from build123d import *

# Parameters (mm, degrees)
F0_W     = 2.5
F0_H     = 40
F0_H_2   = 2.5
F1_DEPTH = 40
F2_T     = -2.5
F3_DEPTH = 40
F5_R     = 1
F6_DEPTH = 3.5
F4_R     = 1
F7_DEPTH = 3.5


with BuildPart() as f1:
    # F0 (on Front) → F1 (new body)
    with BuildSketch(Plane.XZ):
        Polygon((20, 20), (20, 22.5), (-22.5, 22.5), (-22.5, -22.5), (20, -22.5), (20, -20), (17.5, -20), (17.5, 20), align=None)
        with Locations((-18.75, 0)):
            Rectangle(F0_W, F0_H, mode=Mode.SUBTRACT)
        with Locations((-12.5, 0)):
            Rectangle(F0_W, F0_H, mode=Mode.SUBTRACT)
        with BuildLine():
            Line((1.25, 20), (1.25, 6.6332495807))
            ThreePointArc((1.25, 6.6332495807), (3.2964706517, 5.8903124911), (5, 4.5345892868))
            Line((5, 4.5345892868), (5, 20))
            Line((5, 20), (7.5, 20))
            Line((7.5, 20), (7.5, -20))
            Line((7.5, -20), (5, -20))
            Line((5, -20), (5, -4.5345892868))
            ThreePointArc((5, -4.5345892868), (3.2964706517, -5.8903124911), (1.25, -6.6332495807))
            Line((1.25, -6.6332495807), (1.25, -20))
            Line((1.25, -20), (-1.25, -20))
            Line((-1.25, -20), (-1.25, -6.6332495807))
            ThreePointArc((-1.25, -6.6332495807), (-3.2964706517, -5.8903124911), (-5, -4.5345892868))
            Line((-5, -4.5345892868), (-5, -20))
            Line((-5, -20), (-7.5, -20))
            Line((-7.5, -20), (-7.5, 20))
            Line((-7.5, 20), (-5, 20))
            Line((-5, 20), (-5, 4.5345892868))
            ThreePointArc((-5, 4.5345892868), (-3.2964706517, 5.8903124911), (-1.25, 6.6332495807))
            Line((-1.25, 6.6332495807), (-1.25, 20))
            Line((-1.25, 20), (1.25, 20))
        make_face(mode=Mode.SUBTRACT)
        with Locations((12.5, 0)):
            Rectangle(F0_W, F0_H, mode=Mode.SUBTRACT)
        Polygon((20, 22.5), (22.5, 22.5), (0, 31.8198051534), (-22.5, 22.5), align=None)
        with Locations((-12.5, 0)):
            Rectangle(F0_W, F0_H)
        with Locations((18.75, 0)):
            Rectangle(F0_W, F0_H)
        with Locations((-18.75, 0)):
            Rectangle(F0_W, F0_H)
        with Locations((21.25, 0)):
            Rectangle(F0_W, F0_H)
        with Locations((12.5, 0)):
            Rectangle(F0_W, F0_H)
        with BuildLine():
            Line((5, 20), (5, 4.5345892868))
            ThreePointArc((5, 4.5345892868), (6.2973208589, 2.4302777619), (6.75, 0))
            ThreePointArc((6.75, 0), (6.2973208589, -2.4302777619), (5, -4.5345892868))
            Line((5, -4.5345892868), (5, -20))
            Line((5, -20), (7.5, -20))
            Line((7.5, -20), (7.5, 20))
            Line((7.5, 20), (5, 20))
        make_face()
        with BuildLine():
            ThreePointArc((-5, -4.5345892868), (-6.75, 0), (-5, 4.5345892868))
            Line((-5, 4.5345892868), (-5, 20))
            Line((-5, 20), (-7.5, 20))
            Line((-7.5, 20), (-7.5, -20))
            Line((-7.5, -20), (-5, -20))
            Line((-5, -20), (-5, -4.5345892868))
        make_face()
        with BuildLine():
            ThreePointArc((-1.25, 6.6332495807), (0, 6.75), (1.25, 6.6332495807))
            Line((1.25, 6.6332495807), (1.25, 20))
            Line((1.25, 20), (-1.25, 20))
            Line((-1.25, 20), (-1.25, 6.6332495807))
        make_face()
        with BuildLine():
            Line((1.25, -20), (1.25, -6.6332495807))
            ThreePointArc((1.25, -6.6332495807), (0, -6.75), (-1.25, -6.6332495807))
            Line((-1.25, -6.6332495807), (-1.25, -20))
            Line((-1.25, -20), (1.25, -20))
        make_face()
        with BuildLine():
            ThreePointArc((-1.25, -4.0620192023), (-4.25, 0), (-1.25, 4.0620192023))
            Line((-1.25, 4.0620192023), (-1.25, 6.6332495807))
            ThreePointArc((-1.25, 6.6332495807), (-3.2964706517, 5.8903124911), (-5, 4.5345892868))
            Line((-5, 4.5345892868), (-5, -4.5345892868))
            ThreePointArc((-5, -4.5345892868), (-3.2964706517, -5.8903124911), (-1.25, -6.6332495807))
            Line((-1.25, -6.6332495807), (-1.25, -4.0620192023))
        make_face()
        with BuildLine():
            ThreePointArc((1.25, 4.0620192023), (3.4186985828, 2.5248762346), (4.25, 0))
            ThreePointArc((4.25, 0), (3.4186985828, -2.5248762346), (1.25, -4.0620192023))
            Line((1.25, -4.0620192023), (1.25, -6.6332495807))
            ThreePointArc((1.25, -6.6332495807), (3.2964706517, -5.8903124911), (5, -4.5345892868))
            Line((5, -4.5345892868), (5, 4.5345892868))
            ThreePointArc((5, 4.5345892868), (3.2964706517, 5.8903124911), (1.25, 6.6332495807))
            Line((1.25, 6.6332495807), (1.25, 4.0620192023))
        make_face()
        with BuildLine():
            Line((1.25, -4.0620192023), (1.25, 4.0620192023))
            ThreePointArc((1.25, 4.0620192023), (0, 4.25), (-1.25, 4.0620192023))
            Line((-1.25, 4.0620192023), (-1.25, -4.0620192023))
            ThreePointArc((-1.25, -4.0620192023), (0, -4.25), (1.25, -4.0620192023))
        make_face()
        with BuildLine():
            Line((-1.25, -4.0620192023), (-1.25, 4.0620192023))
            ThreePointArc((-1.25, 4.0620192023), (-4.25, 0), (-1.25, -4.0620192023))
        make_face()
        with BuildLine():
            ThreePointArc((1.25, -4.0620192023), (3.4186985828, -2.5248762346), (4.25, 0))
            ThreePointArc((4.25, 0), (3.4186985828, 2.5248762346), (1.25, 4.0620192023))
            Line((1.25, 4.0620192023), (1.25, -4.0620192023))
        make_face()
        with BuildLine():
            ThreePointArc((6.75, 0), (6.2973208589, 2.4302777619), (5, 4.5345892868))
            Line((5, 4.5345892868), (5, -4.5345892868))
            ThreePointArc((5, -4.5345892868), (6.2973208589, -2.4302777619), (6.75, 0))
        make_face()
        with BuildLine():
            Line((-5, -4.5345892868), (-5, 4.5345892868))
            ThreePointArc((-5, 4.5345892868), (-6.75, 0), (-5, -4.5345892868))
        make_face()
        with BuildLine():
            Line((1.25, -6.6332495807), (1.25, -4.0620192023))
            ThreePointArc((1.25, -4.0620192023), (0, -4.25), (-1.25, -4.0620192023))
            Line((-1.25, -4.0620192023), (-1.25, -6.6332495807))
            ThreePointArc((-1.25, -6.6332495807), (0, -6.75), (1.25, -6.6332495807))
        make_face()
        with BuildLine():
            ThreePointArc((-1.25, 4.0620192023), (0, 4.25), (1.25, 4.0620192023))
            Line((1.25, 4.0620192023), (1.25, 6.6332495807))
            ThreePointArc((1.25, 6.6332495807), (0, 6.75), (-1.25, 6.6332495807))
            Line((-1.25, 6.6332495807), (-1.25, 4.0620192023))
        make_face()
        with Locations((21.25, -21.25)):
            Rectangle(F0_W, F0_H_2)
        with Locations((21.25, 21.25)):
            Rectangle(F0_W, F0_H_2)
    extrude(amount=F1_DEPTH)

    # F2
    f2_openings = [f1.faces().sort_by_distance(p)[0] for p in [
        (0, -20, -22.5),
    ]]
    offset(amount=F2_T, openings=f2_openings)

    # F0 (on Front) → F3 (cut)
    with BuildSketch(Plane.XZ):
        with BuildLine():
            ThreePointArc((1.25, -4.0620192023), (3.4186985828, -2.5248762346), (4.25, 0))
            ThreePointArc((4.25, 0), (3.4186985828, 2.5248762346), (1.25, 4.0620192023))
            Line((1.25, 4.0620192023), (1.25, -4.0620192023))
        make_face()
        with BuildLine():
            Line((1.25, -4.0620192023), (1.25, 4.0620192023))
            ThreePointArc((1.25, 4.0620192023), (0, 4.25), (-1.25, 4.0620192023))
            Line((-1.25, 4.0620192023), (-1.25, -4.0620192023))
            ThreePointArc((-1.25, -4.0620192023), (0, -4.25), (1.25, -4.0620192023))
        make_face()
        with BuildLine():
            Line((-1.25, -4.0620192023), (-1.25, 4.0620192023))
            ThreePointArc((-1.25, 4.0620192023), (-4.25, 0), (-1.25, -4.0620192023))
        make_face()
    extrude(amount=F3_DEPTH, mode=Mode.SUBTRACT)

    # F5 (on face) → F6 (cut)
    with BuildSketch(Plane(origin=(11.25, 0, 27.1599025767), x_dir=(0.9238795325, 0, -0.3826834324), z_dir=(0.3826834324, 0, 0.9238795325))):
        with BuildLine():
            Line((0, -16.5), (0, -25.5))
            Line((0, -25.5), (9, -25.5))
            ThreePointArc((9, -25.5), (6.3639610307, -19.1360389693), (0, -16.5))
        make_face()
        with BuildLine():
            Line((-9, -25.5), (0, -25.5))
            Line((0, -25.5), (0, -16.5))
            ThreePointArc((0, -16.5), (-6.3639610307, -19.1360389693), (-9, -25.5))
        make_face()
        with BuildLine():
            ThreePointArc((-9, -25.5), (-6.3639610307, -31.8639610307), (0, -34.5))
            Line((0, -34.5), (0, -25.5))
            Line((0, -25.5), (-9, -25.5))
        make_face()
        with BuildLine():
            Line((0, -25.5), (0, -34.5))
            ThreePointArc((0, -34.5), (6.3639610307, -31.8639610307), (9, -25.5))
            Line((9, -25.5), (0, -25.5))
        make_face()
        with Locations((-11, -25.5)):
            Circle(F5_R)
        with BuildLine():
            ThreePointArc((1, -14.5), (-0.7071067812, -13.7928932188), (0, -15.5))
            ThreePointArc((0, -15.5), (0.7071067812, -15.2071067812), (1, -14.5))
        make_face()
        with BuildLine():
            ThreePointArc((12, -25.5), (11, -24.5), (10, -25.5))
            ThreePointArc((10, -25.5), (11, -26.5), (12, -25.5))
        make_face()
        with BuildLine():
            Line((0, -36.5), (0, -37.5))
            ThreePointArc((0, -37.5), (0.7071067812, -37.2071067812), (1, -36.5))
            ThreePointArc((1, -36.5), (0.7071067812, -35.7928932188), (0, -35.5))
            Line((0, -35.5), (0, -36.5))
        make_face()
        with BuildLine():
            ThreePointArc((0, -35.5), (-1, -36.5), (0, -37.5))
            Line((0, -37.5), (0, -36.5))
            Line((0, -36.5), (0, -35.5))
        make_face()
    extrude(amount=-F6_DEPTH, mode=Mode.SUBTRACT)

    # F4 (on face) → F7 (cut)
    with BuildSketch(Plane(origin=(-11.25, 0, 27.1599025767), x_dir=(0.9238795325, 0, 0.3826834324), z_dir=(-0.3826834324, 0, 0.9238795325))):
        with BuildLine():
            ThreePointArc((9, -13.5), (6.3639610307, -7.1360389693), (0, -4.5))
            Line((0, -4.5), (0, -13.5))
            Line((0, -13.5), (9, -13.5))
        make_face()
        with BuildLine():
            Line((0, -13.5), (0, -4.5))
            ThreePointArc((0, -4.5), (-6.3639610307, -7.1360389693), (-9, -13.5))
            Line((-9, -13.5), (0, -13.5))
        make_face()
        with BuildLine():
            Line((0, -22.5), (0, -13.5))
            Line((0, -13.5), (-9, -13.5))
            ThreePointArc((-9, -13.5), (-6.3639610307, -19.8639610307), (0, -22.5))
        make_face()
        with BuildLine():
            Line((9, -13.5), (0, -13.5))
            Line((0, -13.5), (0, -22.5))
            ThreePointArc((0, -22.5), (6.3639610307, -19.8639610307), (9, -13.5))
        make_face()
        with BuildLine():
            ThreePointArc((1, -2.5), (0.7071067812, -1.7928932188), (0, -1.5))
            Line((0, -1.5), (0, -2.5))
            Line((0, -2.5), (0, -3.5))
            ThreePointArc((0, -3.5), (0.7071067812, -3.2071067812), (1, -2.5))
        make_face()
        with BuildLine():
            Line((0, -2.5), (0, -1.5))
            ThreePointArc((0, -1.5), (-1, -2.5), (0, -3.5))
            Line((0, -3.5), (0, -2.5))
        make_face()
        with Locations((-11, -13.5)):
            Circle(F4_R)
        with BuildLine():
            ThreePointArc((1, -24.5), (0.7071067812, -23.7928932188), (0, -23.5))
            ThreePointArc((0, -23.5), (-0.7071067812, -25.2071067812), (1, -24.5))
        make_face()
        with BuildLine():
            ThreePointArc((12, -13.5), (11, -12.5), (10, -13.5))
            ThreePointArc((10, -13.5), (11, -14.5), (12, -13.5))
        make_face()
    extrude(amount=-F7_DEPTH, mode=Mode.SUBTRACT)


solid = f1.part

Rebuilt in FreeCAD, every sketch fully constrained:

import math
import FreeCAD as App
import Part
import Sketcher
Q = App.Units.Quantity


def faces_at(feature, points):
    """Names of the faces that lie closest to the given points."""
    faces = feature.Shape.Faces
    near = lambda p: min(range(len(faces)), key=lambda i: faces[i].distToShape(Part.Vertex(*p))[0])
    return sorted({f"Face{near(p) + 1}" for p in points})

doc = App.newDocument("Part")
body = doc.addObject("PartDesign::Body", "Body")

# Sketch on XZ plane
sketch1 = body.newObject("Sketcher::SketchObject", "Sketch")
sketch1.AttachmentSupport = (doc.getObject("XZ_Plane"), [""])
sketch1.MapMode = "FlatFace"
sketch1.addGeometry([
    Part.LineSegment(App.Vector(22, 22, 0), App.Vector(0, 32, 0)),  # 0
    Part.LineSegment(App.Vector(0, 32, 0), App.Vector(-22, 22, 0)),  # 1
    Part.LineSegment(App.Vector(-22, 22, 0), App.Vector(-22, -22, 0)),  # 2
    Part.LineSegment(App.Vector(-22, -22, 0), App.Vector(22, -22, 0)),  # 3
    Part.LineSegment(App.Vector(22, -22, 0), App.Vector(22, 22, 0)),  # 4
], False)
sketch1.addConstraint([
    Sketcher.Constraint("Coincident", 0, 2, 1, 1),
    Sketcher.Constraint("Coincident", 1, 2, 2, 1),
    Sketcher.Constraint("Coincident", 2, 2, 3, 1),
    Sketcher.Constraint("Coincident", 3, 2, 4, 1),
    Sketcher.Constraint("Coincident", 4, 2, 0, 1),
    Sketcher.Constraint("Vertical", 2),
    Sketcher.Constraint("Horizontal", 3),
    Sketcher.Constraint("Vertical", 4),
    Sketcher.Constraint("Symmetric", 1, 2, 3, 2, -1, 1),
    Sketcher.Constraint("PointOnObject", 0, 2, -2),
    Sketcher.Constraint("Horizontal", 1, 2, 4, 2),
    Sketcher.Constraint("Equal", 3, 2),
    Sketcher.Constraint("DistanceX", 3, 1, 3, 2, 45.0),
    Sketcher.Constraint("Angle", 0, Q("157.5 deg")),
])
pad1 = body.newObject("PartDesign::Pad", "Pad")
pad1.Profile = sketch1
pad1.Length = 40
doc.recompute()

thickness = body.newObject("PartDesign::Thickness", "Thickness")
thickness.Base = (pad1, faces_at(pad1, [(0, -20, -22.5)]))
thickness.Value = 2.5
thickness.Reversed = True
thickness.Join = "Arc"

# Sketch on XZ plane
sketch2 = body.newObject("Sketcher::SketchObject", "Sketch001")
sketch2.AttachmentSupport = (doc.getObject("XZ_Plane"), [""])
sketch2.MapMode = "FlatFace"
sketch2.addGeometry([
    Part.ArcOfCircle(Part.Circle(App.Vector(0, 0, 0), App.Vector(0, 0, 1), 4.2), math.radians(-73), math.radians(0)),  # 0
    Part.ArcOfCircle(Part.Circle(App.Vector(0, 0, 0), App.Vector(0, 0, 1), 4.2), math.radians(0), math.radians(73)),  # 1
    Part.ArcOfCircle(Part.Circle(App.Vector(0, 0, 0), App.Vector(0, 0, 1), 4.2), math.radians(73), math.radians(107)),  # 2
    Part.ArcOfCircle(Part.Circle(App.Vector(0, 0, 0), App.Vector(0, 0, 1), 4.2), math.radians(107), math.radians(253)),  # 3
    Part.ArcOfCircle(Part.Circle(App.Vector(0, 0, 0), App.Vector(0, 0, 1), 4.2), math.radians(-107), math.radians(-73)),  # 4
], False)
sketch2.addConstraint([
    Sketcher.Constraint("Tangent", 0, 2, 1, 1),
    Sketcher.Constraint("Tangent", 1, 2, 2, 1),
    Sketcher.Constraint("Tangent", 2, 2, 3, 1),
    Sketcher.Constraint("Tangent", 3, 2, 4, 1),
    Sketcher.Constraint("Tangent", 4, 2, 0, 1),
    Sketcher.Constraint("Coincident", 0, 3, -1, 1),
    Sketcher.Constraint("Coincident", 2, 3, -1, 1),
    Sketcher.Constraint("PointOnObject", 0, 2, -1),
    Sketcher.Constraint("Horizontal", 1, 2, 2, 2),
    Sketcher.Constraint("Horizontal", 3, 2, 4, 2),
    Sketcher.Constraint("Vertical", 2, 2, 3, 2),
    Sketcher.Constraint("Radius", 0, 4.25),
    Sketcher.Constraint("DistanceX", 2, 2, 1, 2, 2.5),
])
pocket1 = body.newObject("PartDesign::Pocket", "Pocket")
pocket1.Profile = sketch2
pocket1.Length = 40
pocket1.Reversed = True

# Sketch on an angled plane
sketch3 = body.newObject("Sketcher::SketchObject", "Sketch002")
sketch3.Placement = App.Placement(App.Vector(11.25, 0, 27.159903), App.Rotation(App.Vector(0.923879532, 0, -0.382683432), App.Vector(0, 0.999999999, 0), App.Vector(0.382683432, 0, 0.923879532), "ZXY"))
sketch3.addGeometry([
    Part.ArcOfCircle(Part.Circle(App.Vector(0, -25.5, 0), App.Vector(0, 0, 1), 9), math.radians(0), math.radians(90)),  # 0
    Part.ArcOfCircle(Part.Circle(App.Vector(0, -25.5, 0), App.Vector(0, 0, 1), 9), math.radians(90), math.radians(180)),  # 1
    Part.ArcOfCircle(Part.Circle(App.Vector(0, -25.5, 0), App.Vector(0, 0, 1), 9), math.radians(180), math.radians(270)),  # 2
    Part.ArcOfCircle(Part.Circle(App.Vector(0, -25.5, 0), App.Vector(0, 0, 1), 9), math.radians(-90), math.radians(0)),  # 3
    Part.Circle(App.Vector(-11, -25.5, 0), App.Vector(0, 0, 1), 1),  # 4
    Part.ArcOfCircle(Part.Circle(App.Vector(0, -14.5, 0), App.Vector(0, 0, 1), 1), math.radians(0), math.radians(270)),  # 5
    Part.ArcOfCircle(Part.Circle(App.Vector(0, -14.5, 0), App.Vector(0, 0, 1), 1), math.radians(-90), math.radians(0)),  # 6
    Part.Circle(App.Vector(11, -25.5, 0), App.Vector(0, 0, 1), 1),  # 7
    Part.ArcOfCircle(Part.Circle(App.Vector(0, -36.5, 0), App.Vector(0, 0, 1), 1), math.radians(-90), math.radians(0)),  # 8
    Part.ArcOfCircle(Part.Circle(App.Vector(0, -36.5, 0), App.Vector(0, 0, 1), 1), math.radians(0), math.radians(90)),  # 9
    Part.ArcOfCircle(Part.Circle(App.Vector(0, -36.5, 0), App.Vector(0, 0, 1), 1), math.radians(90), math.radians(270)),  # 10
], False)
sketch3.addConstraint([
    Sketcher.Constraint("Tangent", 0, 2, 1, 1),
    Sketcher.Constraint("Tangent", 1, 2, 2, 1),
    Sketcher.Constraint("Tangent", 2, 2, 3, 1),
    Sketcher.Constraint("Tangent", 3, 2, 0, 1),
    Sketcher.Constraint("Tangent", 5, 1, 6, 2),
    Sketcher.Constraint("Coincident", 6, 1, 5, 2),
    Sketcher.Constraint("Tangent", 8, 2, 9, 1),
    Sketcher.Constraint("Tangent", 9, 2, 10, 1),
    Sketcher.Constraint("Tangent", 10, 2, 8, 1),
    Sketcher.Constraint("Equal", 0, 1),
    Sketcher.Constraint("Equal", 4, 5),
    Sketcher.Constraint("Equal", 6, 7),
    Sketcher.Constraint("Equal", 7, 8),
    Sketcher.Constraint("Symmetric", 4, 3, 7, 3, -2),
    Sketcher.Constraint("Symmetric", 1, 2, 3, 2, -2),
    Sketcher.Constraint("PointOnObject", 5, 3, -2),
    Sketcher.Constraint("PointOnObject", 8, 3, -2),
    Sketcher.Constraint("PointOnObject", 0, 2, -2),
    Sketcher.Constraint("PointOnObject", 2, 2, -2),
    Sketcher.Constraint("PointOnObject", 6, 1, -2),
    Sketcher.Constraint("PointOnObject", 9, 2, -2),
    Sketcher.Constraint("PointOnObject", 10, 2, -2),
    Sketcher.Constraint("Horizontal", 3, 3, 4, 3),
    Sketcher.Constraint("Horizontal", 7, 3, 1, 2),
    Sketcher.Constraint("Horizontal", 6, 3, 5, 1),
    Sketcher.Constraint("Horizontal", 10, 3, 8, 2),
    Sketcher.Constraint("Diameter", 4, 2.0),
    Sketcher.Constraint("Radius", 0, 9.0),
    Sketcher.Constraint("DistanceX", 4, 3, -1, 1, 11.0),
    Sketcher.Constraint("DistanceY", 0, 3, 5, 3, 11.0),
    Sketcher.Constraint("DistanceY", 8, 3, 0, 3, 11.0),
    Sketcher.Constraint("DistanceY", 0, 3, -1, 1, 25.5),
])
pocket2 = body.newObject("PartDesign::Pocket", "Pocket001")
pocket2.Profile = sketch3
pocket2.Length = 3.5

# Sketch on an angled plane
sketch4 = body.newObject("Sketcher::SketchObject", "Sketch003")
sketch4.Placement = App.Placement(App.Vector(-11.25, 0, 27.159903), App.Rotation(App.Vector(0.923879532, 0, 0.382683432), App.Vector(0, 0.999999999, 0), App.Vector(-0.382683432, 0, 0.923879532), "ZXY"))
sketch4.addGeometry([
    Part.ArcOfCircle(Part.Circle(App.Vector(0, -13.5, 0), App.Vector(0, 0, 1), 9), math.radians(0), math.radians(90)),  # 0
    Part.ArcOfCircle(Part.Circle(App.Vector(0, -13.5, 0), App.Vector(0, 0, 1), 9), math.radians(90), math.radians(180)),  # 1
    Part.ArcOfCircle(Part.Circle(App.Vector(0, -13.5, 0), App.Vector(0, 0, 1), 9), math.radians(180), math.radians(270)),  # 2
    Part.ArcOfCircle(Part.Circle(App.Vector(0, -13.5, 0), App.Vector(0, 0, 1), 9), math.radians(-90), math.radians(0)),  # 3
    Part.ArcOfCircle(Part.Circle(App.Vector(0, -2.5, 0), App.Vector(0, 0, 1), 1), math.radians(0), math.radians(90)),  # 4
    Part.ArcOfCircle(Part.Circle(App.Vector(0, -2.5, 0), App.Vector(0, 0, 1), 1), math.radians(90), math.radians(270)),  # 5
    Part.ArcOfCircle(Part.Circle(App.Vector(0, -2.5, 0), App.Vector(0, 0, 1), 1), math.radians(-90), math.radians(0)),  # 6
    Part.Circle(App.Vector(-11, -13.5, 0), App.Vector(0, 0, 1), 1),  # 7
    Part.ArcOfCircle(Part.Circle(App.Vector(0, -24.5, 0), App.Vector(0, 0, 1), 1), math.radians(0), math.radians(90)),  # 8
    Part.ArcOfCircle(Part.Circle(App.Vector(0, -24.5, 0), App.Vector(0, 0, 1), 1), math.radians(90), math.radians(360)),  # 9
    Part.Circle(App.Vector(11, -13.5, 0), App.Vector(0, 0, 1), 1),  # 10
], False)
sketch4.addConstraint([
    Sketcher.Constraint("Tangent", 0, 2, 1, 1),
    Sketcher.Constraint("Tangent", 1, 2, 2, 1),
    Sketcher.Constraint("Tangent", 2, 2, 3, 1),
    Sketcher.Constraint("Tangent", 3, 2, 0, 1),
    Sketcher.Constraint("Tangent", 4, 2, 5, 1),
    Sketcher.Constraint("Tangent", 5, 2, 6, 1),
    Sketcher.Constraint("Tangent", 6, 2, 4, 1),
    Sketcher.Constraint("Tangent", 8, 1, 9, 2),
    Sketcher.Constraint("Coincident", 9, 1, 8, 2),
    Sketcher.Constraint("Equal", 0, 1),
    Sketcher.Constraint("Equal", 6, 7),
    Sketcher.Constraint("Equal", 7, 8),
    Sketcher.Constraint("Equal", 9, 10),
    Sketcher.Constraint("Symmetric", 7, 3, 10, 3, -2),
    Sketcher.Constraint("Symmetric", 1, 2, 3, 2, -2),
    Sketcher.Constraint("PointOnObject", 4, 3, -2),
    Sketcher.Constraint("PointOnObject", 8, 3, -2),
    Sketcher.Constraint("PointOnObject", 0, 2, -2),
    Sketcher.Constraint("PointOnObject", 2, 2, -2),
    Sketcher.Constraint("PointOnObject", 4, 2, -2),
    Sketcher.Constraint("PointOnObject", 5, 2, -2),
    Sketcher.Constraint("PointOnObject", 9, 1, -2),
    Sketcher.Constraint("Horizontal", 3, 3, 7, 3),
    Sketcher.Constraint("Horizontal", 10, 3, 1, 2),
    Sketcher.Constraint("Horizontal", 5, 3, 6, 2),
    Sketcher.Constraint("Horizontal", 9, 3, 8, 1),
    Sketcher.Constraint("Diameter", 7, 2.0),
    Sketcher.Constraint("Radius", 0, 9.0),
    Sketcher.Constraint("DistanceX", 7, 3, -1, 1, 11.0),
    Sketcher.Constraint("DistanceY", 0, 3, 4, 3, 11.0),
    Sketcher.Constraint("DistanceY", 8, 3, 0, 3, 11.0),
    Sketcher.Constraint("DistanceY", 0, 3, -1, 1, 13.5),
])
pocket3 = body.newObject("PartDesign::Pocket", "Pocket002")
pocket3.Profile = sketch4
pocket3.Length = 3.5

doc.recompute()
